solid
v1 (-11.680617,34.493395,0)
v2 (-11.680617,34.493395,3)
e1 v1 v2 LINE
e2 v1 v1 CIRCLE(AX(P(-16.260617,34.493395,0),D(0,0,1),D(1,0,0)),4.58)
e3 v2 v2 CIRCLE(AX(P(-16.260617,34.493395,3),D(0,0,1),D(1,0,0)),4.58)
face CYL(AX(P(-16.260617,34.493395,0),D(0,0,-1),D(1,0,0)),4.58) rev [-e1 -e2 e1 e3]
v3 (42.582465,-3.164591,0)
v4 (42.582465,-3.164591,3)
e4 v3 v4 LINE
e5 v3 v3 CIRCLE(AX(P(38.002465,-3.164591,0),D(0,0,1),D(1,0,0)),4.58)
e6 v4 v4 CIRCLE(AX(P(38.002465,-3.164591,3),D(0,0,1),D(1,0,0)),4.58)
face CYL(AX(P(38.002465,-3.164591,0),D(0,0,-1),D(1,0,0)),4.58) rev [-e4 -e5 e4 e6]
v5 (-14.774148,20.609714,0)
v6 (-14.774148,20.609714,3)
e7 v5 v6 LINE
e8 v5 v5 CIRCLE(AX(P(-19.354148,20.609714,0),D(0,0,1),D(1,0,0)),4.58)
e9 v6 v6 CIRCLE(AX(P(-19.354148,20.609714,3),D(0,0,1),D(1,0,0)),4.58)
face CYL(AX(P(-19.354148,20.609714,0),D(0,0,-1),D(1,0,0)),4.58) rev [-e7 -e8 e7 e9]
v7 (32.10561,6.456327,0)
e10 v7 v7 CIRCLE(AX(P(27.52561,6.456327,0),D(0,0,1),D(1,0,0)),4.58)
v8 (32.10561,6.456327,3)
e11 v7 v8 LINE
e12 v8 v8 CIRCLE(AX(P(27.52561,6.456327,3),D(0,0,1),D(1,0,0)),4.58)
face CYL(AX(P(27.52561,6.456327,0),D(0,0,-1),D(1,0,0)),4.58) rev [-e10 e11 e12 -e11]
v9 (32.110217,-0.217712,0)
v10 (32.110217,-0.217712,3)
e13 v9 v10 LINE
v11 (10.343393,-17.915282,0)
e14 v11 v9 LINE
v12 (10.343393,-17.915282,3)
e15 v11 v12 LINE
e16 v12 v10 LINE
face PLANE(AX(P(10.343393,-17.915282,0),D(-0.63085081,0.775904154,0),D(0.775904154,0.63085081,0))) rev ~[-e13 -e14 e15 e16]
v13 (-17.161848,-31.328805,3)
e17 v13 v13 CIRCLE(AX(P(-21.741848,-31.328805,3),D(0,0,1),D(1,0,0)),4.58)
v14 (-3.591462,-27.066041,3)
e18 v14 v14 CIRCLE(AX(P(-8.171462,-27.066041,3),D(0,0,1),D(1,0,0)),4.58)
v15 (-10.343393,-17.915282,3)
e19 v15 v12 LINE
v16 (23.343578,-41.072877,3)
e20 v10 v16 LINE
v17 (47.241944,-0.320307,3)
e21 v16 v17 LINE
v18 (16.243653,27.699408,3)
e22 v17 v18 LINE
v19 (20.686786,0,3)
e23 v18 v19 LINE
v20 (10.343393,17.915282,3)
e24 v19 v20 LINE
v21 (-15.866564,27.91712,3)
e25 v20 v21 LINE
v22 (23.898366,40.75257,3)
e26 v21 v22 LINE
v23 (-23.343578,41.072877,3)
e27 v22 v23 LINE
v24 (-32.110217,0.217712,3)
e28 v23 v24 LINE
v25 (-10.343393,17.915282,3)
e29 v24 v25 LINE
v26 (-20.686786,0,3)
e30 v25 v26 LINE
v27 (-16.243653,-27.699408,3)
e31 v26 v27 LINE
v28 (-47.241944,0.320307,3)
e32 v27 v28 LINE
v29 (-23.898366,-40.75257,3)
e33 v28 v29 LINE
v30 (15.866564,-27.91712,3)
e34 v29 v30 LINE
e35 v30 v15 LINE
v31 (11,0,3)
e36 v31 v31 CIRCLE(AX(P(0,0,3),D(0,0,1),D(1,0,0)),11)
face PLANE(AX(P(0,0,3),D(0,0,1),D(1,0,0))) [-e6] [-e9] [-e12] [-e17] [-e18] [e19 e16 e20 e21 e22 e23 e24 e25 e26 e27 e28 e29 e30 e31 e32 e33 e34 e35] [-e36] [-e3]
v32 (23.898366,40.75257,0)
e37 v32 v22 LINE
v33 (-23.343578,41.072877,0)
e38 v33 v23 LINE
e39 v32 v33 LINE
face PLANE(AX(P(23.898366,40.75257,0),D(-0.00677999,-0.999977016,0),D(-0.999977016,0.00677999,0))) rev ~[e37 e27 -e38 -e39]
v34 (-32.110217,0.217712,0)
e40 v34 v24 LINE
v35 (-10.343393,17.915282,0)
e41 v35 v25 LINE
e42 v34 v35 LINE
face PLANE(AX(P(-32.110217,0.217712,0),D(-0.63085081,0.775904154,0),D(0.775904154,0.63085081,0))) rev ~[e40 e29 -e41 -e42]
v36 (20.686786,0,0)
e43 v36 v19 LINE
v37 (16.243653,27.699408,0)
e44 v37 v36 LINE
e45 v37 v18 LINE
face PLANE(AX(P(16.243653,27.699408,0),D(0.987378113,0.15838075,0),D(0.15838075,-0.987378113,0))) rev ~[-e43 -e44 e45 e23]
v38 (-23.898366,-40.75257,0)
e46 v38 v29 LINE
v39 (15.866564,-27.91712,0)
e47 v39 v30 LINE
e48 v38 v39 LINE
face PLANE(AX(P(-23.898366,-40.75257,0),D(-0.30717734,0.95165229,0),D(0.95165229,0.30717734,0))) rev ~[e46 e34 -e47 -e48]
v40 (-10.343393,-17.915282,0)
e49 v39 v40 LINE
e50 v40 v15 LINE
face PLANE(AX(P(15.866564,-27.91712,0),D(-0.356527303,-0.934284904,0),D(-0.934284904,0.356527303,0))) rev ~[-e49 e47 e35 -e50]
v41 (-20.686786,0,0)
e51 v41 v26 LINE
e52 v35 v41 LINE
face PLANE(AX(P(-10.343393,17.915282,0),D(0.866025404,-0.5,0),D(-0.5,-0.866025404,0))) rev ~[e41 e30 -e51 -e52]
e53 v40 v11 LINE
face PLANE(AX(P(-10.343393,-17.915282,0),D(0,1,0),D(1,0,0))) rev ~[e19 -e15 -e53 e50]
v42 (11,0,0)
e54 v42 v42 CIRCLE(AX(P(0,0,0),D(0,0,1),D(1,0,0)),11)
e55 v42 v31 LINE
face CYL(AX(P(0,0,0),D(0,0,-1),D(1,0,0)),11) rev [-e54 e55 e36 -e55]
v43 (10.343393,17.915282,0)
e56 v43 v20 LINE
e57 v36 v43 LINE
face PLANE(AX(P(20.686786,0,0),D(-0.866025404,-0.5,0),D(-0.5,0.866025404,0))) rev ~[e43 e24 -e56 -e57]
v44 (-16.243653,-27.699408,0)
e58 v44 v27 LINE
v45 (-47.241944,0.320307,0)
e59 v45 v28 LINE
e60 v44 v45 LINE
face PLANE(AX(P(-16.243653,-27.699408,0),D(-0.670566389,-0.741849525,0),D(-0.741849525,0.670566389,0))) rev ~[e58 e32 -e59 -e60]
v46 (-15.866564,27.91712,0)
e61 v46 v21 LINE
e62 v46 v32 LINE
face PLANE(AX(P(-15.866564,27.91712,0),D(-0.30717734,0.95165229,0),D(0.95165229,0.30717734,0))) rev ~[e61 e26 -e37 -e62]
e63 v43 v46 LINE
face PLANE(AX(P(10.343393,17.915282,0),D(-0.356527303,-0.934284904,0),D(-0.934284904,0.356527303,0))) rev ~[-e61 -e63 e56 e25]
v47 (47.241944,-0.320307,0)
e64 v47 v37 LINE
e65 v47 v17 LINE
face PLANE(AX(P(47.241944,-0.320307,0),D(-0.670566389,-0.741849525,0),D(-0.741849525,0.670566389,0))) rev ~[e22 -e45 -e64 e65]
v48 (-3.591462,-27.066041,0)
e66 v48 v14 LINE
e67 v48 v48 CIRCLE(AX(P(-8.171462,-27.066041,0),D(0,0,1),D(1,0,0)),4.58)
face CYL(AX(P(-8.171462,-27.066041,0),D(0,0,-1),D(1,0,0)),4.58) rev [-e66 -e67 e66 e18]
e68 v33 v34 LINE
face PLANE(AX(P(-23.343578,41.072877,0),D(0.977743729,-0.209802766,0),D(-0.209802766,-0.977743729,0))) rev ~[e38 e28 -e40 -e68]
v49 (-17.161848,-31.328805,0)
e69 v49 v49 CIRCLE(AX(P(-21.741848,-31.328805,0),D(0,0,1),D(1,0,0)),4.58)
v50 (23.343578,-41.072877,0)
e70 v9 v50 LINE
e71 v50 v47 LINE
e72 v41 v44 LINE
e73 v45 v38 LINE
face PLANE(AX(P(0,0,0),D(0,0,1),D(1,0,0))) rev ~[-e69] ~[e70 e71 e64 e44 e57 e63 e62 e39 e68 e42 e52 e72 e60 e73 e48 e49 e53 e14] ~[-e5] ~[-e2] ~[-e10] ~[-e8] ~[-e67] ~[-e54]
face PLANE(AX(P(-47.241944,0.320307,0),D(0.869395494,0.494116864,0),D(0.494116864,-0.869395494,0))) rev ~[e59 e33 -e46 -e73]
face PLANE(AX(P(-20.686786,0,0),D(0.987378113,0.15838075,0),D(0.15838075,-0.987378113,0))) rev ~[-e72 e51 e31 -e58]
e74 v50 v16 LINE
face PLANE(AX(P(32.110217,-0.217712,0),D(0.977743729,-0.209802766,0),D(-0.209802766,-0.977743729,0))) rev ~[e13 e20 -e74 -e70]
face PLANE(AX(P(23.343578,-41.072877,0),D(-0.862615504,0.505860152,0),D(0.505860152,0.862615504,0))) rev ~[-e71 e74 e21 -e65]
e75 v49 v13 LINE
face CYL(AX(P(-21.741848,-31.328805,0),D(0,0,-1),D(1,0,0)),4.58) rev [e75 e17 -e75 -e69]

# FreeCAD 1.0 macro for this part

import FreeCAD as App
import Part
import Sketcher

V = App.Vector
Q = App.Units.Quantity


def add_polygon(sketch, points):
    """Adds a closed chain of lines whose ends are joined by coincident constraints."""
    first, n = sketch.GeometryCount, len(points)
    for a, b in zip(points, points[1:] + points[:1]):
        sketch.addGeometry(Part.LineSegment(App.Vector(*a, 0), App.Vector(*b, 0)), False)
    for i in range(n):
        sketch.addConstraint(Sketcher.Constraint("Coincident", first + i, 2, first + (i + 1) % n, 1))

doc = App.newDocument("Part")
params = doc.addObject("Spreadsheet::Sheet", "Params")
for row, (alias, value) in enumerate([
    ("sketch1_diameter", "22 mm"),
    ("sketch1_diameter2", "9.16 mm"),
    ("pad1_length", "3 mm"),
], start=1):
    params.set(f"A{row}", alias)
    params.set(f"B{row}", "=" + value)
    params.setAlias(f"B{row}", alias)

body = doc.addObject("PartDesign::Body", "Body")

# Sketch on XY plane
sketch1 = doc.addObject("Sketcher::SketchObject", "Sketch")
body.addObject(sketch1)
sketch1.AttachmentSupport = (doc.XY_Plane, [""])
sketch1.MapMode = "FlatFace"
add_polygon(sketch1, [(-10.3, -17.9), (10.3, -17.9), (32.1, -0.2), (23.3, -41.1), (47.2, -0.3), (16.2, 27.7), (20.7, 0), (10.3, 17.9), (-15.9, 27.9), (23.9, 40.8), (-23.3, 41.1), (-32.1, 0.2), (-10.3, 17.9), (-20.7, 0), (-16.2, -27.7), (-47.2, 0.3), (-23.9, -40.8), (15.9, -27.9)])  # lines 0-17
sketch1.addGeometry(Part.Circle(V(-21.7, -31.3, 0), V(0, 0, 1), 4.6), False)  # 18
sketch1.addGeometry(Part.Circle(V(-8.2, -27.1, 0), V(0, 0, 1), 4.6), False)  # 19
sketch1.addGeometry(Part.Circle(V(0, 0, 0), V(0, 0, 1), 11), False)  # 20
sketch1.addGeometry(Part.Circle(V(38, -3.2, 0), V(0, 0, 1), 4.6), False)  # 21
sketch1.addGeometry(Part.Circle(V(-19.4, 20.6, 0), V(0, 0, 1), 4.6), False)  # 22
sketch1.addGeometry(Part.Circle(V(-16.3, 34.5, 0), V(0, 0, 1), 4.6), False)  # 23
sketch1.addGeometry(Part.Circle(V(27.5, 6.5, 0), V(0, 0, 1), 4.6), False)  # 24
sketch1.addConstraint([
    Sketcher.Constraint("Horizontal", 0),
    Sketcher.Constraint("Coincident", 20, 3, -1, 1),
    Sketcher.Constraint("Equal", 18, 19),
    Sketcher.Constraint("Equal", 19, 21),
    Sketcher.Constraint("Equal", 21, 22),
    Sketcher.Constraint("Equal", 22, 23),
    Sketcher.Constraint("Equal", 23, 24),
    Sketcher.Constraint("Symmetric", 2, 2, 9, 2, -1, 1),
    Sketcher.Constraint("Symmetric", 1, 2, 10, 2, -1, 1),
    Sketcher.Constraint("Symmetric", 0, 2, 11, 2, -1, 1),
    Sketcher.Constraint("Symmetric", 5, 2, 12, 2, -1, 1),
    Sketcher.Constraint("Symmetric", 4, 2, 13, 2, -1, 1),
    Sketcher.Constraint("Symmetric", 3, 2, 14, 2, -1, 1),
    Sketcher.Constraint("Symmetric", 8, 2, 15, 2, -1, 1),
    Sketcher.Constraint("Symmetric", 7, 2, 16, 2, -1, 1),
    Sketcher.Constraint("Symmetric", 6, 2, 17, 2, -1, 1),
    Sketcher.Constraint("PointOnObject", 5, 2, -1),
    Sketcher.Constraint("Vertical", 0, 2, 6, 2),
    Sketcher.Constraint("Equal", 2, 4),
    Sketcher.Constraint("Equal", 1, 5),
    Sketcher.Constraint("Equal", 5, 7),
    Sketcher.Constraint("Equal", 4, 8),
    Sketcher.Constraint("Equal", 3, 9),
    Sketcher.Constraint("Equal", 9, 15),
    Sketcher.Constraint("Diameter", 20, Q("22 mm")),
    Sketcher.Constraint("Diameter", 18, Q("9.16 mm")),
    Sketcher.Constraint("Angle", 6, Q("120 deg")),
    Sketcher.Constraint("DistanceY", 10, 2, 22, 3, Q("20.392002 mm")),
    Sketcher.Constraint("DistanceX", 18, 3, 22, 3, Q("2.387701 mm")),
    Sketcher.Constraint("DistanceY", 18, 3, 23, 3, Q("65.8222 mm")),
    Sketcher.Constraint("DistanceX", 22, 3, 4, 2, Q("35.5978 mm")),
    Sketcher.Constraint("Distance", 3, Q("47.24303 mm")),
    Sketcher.Constraint("DistanceX", 0, 1, 0, 2, Q("20.686786 mm")),
    Sketcher.Constraint("DistanceX", 18, 3, -1, 1, Q("21.741848 mm")),
    Sketcher.Constraint("DistanceX", 19, 3, -1, 1, Q("8.171462 mm")),
    Sketcher.Constraint("DistanceY", 19, 3, -1, 1, Q("27.066041 mm")),
    Sketcher.Constraint("DistanceY", 21, 3, -1, 1, Q("3.164591 mm")),
    Sketcher.Constraint("DistanceX", -1, 1, 24, 3, Q("27.52561 mm")),
    Sketcher.Constraint("DistanceY", 1, 2, -1, 1, Q("0.217712 mm")),
    Sketcher.Constraint("DistanceY", -1, 1, 7, 2, Q("27.91712 mm")),
    Sketcher.Constraint("DistanceY", -1, 1, 8, 2, Q("40.75257 mm")),
    Sketcher.Constraint("DistanceY", 18, 3, 22, 3, Q("51.938519 mm")),
    Sketcher.Constraint("DistanceX", 22, 3, 23, 3, Q("3.093531 mm")),
    Sketcher.Constraint("DistanceX", 23, 3, 21, 3, Q("54.263082 mm")),
    Sketcher.Constraint("DistanceY", 24, 3, 23, 3, Q("28.037069 mm")),
    Sketcher.Constraint("DistanceY", 19, 3, 0, 2, Q("9.150758 mm")),
    Sketcher.Constraint("DistanceX", 1, 2, 21, 3, Q("5.892248 mm")),
])
sketch1.setExpression("Constraints[42]", "Params.sketch1_diameter")
sketch1.setExpression("Constraints[43]", "Params.sketch1_diameter2")
pad1 = doc.addObject("PartDesign::Pad", "Pad")
body.addObject(pad1)
pad1.Profile = sketch1
pad1.setExpression("Length", "Params.pad1_length")

doc.recompute()
